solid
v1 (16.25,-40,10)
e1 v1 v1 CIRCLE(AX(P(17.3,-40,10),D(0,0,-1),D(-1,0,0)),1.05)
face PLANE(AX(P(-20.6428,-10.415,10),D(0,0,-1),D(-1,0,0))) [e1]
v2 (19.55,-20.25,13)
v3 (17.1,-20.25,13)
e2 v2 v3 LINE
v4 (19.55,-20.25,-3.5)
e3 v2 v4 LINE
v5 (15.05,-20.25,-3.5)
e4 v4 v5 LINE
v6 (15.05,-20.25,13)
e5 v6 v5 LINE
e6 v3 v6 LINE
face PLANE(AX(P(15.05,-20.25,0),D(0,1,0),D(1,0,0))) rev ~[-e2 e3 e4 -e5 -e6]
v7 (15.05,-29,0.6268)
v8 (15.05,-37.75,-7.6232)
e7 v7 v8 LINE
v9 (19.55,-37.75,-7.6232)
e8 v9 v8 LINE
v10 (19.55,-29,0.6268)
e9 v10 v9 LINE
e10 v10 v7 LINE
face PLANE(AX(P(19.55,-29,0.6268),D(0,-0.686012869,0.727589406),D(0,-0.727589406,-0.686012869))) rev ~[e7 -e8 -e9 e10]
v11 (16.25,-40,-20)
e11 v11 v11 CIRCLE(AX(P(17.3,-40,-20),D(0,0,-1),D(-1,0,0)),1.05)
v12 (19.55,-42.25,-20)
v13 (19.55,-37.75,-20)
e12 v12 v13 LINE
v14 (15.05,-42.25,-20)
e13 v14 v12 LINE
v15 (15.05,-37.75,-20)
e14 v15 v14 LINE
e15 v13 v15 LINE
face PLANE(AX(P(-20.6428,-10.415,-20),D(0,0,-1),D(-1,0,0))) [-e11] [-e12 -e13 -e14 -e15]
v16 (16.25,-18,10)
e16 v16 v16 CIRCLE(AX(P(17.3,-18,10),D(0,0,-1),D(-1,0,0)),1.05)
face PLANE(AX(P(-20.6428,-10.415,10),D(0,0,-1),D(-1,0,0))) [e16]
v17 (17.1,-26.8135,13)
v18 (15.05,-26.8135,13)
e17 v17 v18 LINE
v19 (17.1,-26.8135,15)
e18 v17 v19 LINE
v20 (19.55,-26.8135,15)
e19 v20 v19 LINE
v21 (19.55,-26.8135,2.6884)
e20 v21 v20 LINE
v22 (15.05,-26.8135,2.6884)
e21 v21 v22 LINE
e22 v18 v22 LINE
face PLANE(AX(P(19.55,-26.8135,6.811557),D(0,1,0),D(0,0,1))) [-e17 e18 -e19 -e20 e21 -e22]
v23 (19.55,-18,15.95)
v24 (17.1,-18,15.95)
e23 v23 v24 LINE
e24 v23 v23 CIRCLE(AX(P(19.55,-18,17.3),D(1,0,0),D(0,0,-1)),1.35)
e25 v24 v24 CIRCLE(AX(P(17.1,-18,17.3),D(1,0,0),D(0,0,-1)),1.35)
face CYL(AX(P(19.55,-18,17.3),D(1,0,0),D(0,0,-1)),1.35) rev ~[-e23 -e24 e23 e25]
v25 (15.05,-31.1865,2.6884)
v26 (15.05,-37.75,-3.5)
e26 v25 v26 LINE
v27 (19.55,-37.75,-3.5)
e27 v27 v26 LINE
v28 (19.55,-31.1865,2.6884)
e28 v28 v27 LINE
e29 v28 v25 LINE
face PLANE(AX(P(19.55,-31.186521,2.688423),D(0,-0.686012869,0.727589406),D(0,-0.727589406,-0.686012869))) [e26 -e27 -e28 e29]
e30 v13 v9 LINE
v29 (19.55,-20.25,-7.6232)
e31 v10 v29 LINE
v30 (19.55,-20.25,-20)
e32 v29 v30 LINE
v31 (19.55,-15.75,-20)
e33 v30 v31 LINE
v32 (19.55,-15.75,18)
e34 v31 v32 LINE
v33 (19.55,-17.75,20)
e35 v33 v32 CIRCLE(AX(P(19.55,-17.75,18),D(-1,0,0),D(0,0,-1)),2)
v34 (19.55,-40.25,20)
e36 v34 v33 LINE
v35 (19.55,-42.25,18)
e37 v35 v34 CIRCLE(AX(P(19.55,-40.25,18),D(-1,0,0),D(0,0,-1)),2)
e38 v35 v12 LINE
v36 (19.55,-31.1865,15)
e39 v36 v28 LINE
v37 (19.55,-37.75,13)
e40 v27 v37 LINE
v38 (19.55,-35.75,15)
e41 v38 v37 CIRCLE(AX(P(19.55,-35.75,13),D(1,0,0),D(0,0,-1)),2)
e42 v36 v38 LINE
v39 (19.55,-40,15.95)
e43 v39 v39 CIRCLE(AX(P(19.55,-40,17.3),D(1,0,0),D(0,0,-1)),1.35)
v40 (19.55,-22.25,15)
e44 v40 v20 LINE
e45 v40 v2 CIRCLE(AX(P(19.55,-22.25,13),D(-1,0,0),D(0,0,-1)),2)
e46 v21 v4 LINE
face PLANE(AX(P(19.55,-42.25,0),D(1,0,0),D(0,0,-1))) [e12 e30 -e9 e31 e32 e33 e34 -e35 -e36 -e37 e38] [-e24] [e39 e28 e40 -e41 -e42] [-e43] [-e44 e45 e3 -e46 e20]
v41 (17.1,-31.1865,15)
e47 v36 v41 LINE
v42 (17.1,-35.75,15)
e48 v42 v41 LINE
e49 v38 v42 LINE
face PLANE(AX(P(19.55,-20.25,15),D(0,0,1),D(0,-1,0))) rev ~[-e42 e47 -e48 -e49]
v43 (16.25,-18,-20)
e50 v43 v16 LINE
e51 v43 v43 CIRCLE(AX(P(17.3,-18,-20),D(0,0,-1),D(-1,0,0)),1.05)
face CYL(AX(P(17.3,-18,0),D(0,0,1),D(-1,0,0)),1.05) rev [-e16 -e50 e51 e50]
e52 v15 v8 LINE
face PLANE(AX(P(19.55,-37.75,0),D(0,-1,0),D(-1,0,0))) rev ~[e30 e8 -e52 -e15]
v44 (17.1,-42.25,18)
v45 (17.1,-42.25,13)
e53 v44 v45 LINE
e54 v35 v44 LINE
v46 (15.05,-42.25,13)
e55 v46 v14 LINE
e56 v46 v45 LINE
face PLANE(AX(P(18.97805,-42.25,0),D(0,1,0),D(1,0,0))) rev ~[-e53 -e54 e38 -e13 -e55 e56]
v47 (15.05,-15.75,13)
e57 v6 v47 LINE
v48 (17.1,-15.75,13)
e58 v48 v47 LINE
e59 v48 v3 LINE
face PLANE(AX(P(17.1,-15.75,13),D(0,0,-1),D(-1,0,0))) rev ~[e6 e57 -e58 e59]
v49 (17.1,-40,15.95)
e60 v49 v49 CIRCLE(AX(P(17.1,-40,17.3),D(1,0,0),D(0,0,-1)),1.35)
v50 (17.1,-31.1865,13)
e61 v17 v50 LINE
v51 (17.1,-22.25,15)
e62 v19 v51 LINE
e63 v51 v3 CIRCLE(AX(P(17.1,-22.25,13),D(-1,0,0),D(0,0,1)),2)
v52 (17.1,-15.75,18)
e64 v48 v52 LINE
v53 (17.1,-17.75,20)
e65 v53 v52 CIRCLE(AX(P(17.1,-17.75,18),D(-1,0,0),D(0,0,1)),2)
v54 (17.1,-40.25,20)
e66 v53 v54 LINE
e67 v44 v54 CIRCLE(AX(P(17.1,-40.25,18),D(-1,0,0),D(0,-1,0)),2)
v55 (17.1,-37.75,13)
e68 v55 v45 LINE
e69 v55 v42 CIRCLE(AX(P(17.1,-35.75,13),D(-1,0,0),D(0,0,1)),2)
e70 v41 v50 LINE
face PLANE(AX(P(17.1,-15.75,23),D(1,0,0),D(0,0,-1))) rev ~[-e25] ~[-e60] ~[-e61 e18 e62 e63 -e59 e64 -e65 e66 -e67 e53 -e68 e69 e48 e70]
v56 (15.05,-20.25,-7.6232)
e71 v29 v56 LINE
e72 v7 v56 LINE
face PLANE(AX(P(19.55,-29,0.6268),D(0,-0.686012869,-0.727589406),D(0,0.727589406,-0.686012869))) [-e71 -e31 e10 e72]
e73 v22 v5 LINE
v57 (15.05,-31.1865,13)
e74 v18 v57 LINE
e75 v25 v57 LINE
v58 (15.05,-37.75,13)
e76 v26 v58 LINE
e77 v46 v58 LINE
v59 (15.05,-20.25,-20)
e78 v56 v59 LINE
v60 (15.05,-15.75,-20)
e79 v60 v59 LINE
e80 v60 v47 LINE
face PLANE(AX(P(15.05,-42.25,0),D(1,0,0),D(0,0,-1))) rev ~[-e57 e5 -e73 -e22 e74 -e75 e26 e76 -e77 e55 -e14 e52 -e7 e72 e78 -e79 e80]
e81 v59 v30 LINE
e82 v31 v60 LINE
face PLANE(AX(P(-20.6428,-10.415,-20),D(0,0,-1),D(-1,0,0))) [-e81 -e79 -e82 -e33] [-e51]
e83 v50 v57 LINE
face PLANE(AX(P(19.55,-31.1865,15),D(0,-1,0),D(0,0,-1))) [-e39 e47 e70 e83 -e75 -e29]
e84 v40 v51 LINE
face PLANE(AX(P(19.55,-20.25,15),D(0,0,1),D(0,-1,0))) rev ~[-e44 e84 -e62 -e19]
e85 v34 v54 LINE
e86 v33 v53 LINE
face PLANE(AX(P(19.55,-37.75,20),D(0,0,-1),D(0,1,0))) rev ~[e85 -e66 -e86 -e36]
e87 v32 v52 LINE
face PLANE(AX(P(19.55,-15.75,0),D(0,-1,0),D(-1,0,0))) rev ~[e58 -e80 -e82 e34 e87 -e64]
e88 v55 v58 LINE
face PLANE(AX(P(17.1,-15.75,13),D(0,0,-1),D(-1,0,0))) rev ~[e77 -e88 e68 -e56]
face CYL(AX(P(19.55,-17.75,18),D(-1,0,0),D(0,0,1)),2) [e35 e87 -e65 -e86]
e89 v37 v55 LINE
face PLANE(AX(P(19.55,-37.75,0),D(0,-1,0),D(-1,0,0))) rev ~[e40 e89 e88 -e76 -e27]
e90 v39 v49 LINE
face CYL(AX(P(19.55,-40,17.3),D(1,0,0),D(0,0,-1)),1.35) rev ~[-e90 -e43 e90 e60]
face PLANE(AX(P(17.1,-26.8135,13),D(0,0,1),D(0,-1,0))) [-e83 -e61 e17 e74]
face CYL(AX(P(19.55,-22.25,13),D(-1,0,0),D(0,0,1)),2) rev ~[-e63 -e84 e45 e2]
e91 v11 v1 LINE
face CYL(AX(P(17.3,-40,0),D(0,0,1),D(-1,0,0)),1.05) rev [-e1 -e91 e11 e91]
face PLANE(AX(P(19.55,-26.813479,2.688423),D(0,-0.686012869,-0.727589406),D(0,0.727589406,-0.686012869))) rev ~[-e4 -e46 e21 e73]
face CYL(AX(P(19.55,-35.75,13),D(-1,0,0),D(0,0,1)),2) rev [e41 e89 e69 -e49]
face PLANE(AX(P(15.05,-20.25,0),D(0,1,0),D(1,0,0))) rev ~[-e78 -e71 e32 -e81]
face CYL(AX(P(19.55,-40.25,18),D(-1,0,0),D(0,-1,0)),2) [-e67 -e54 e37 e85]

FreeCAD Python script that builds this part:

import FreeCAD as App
import Part
import Sketcher
Q = App.Units.Quantity


def edges_at(feature, points):
    """Names of the edges that pass closest to the given points."""
    edges = feature.Shape.Edges
    near = lambda p: min(range(len(edges)), key=lambda i: edges[i].distToShape(Part.Vertex(*p))[0])
    return sorted({f"Edge{near(p) + 1}" for p in points})

doc = App.newDocument("Part")
body = doc.addObject("PartDesign::Body", "Body")
body.AllowCompound = True

# Sketch on XY plane
sketch1 = body.newObject("Sketcher::SketchObject", "Sketch")
sketch1.AttachmentSupport = (doc.getObject("XY_Plane"), [""])
sketch1.MapMode = "FlatFace"
sketch1.addGeometry([
    Part.LineSegment(App.Vector(19.55, -42.25, 0), App.Vector(19.55, -37.75, 0)),  # 0
    Part.LineSegment(App.Vector(19.55, -37.75, 0), App.Vector(15.05, -37.75, 0)),  # 1
    Part.LineSegment(App.Vector(15.05, -37.75, 0), App.Vector(15.05, -42.25, 0)),  # 2
    Part.LineSegment(App.Vector(15.05, -42.25, 0), App.Vector(19.55, -42.25, 0)),  # 3
    Part.LineSegment(App.Vector(15.05, -15.75, 0), App.Vector(15.05, -20.25, 0)),  # 4
    Part.LineSegment(App.Vector(15.05, -20.25, 0), App.Vector(19.55, -20.25, 0)),  # 5
    Part.LineSegment(App.Vector(19.55, -20.25, 0), App.Vector(19.55, -15.75, 0)),  # 6
    Part.LineSegment(App.Vector(19.55, -15.75, 0), App.Vector(15.05, -15.75, 0)),  # 7
], False)
sketch1.addConstraint([
    Sketcher.Constraint("Coincident", 0, 2, 1, 1),
    Sketcher.Constraint("Coincident", 1, 2, 2, 1),
    Sketcher.Constraint("Coincident", 2, 2, 3, 1),
    Sketcher.Constraint("Coincident", 3, 2, 0, 1),
    Sketcher.Constraint("Coincident", 4, 2, 5, 1),
    Sketcher.Constraint("Coincident", 5, 2, 6, 1),
    Sketcher.Constraint("Coincident", 6, 2, 7, 1),
    Sketcher.Constraint("Coincident", 7, 2, 4, 1),
    Sketcher.Constraint("Vertical", 0),
    Sketcher.Constraint("Horizontal", 1),
    Sketcher.Constraint("Vertical", 2),
    Sketcher.Constraint("Horizontal", 3),
    Sketcher.Constraint("Vertical", 4),
    Sketcher.Constraint("Horizontal", 5),
    Sketcher.Constraint("Vertical", 6),
    Sketcher.Constraint("Horizontal", 7),
    Sketcher.Constraint("Vertical", 2, 2, 4, 2),
    Sketcher.Constraint("Vertical", 3, 2, 5, 2),
    Sketcher.Constraint("Equal", 7, 0),
    Sketcher.Constraint("Equal", 2, 4),
    Sketcher.Constraint("DistanceX", 1, 2, 1, 1, Q("4.5 mm")),
    Sketcher.Constraint("DistanceY", 2, 2, 4, 2, Q("22 mm")),
    Sketcher.Constraint("DistanceX", -1, 1, 0, 2, Q("19.55 mm")),
    Sketcher.Constraint("DistanceY", 0, 2, -1, 1, Q("37.75 mm")),
])
pad1 = body.newObject("PartDesign::Pad", "Pad")
pad1.Profile = sketch1
pad1.Length = 20

# Sketch on YZ plane
sketch2 = body.newObject("Sketcher::SketchObject", "Sketch001")
sketch2.AttachmentSupport = (doc.getObject("YZ_Plane"), [""])
sketch2.MapMode = "FlatFace"
sketch2.AttachmentOffset = App.Placement(App.Vector(0, 0, 19.55), App.Rotation())
sketch2.addGeometry([
    Part.LineSegment(App.Vector(-37.75, 20, 0), App.Vector(-37.75, 15, 0)),
    Part.LineSegment(App.Vector(-37.75, 15, 0), App.Vector(-20.25, 15, 0)),
    Part.LineSegment(App.Vector(-20.25, 15, 0), App.Vector(-20.25, 20, 0)),
    Part.LineSegment(App.Vector(-20.25, 20, 0), App.Vector(-37.75, 20, 0)),
], False)
sketch2.addConstraint([
    Sketcher.Constraint("Coincident", 0, 2, 1, 1),
    Sketcher.Constraint("Coincident", 1, 2, 2, 1),
    Sketcher.Constraint("Coincident", 2, 2, 3, 1),
    Sketcher.Constraint("Coincident", 3, 2, 0, 1),
    Sketcher.Constraint("Vertical", 0),
    Sketcher.Constraint("Horizontal", 1),
    Sketcher.Constraint("Vertical", 2),
    Sketcher.Constraint("Horizontal", 3),
    Sketcher.Constraint("DistanceY", 0, 2, 0, 1, Q("5 mm")),
    Sketcher.Constraint("DistanceX", 1, 1, 1, 2, Q("17.5 mm")),
    Sketcher.Constraint("DistanceY", -1, 1, 0, 2, Q("15 mm")),
    Sketcher.Constraint("DistanceX", 0, 2, -1, 1, Q("37.75 mm")),
])
pad2 = body.newObject("PartDesign::Pad", "Pad001")
pad2.Profile = sketch2
pad2.Length = 4.5
pad2.Reversed = True
doc.recompute()

fillet = body.newObject("PartDesign::Fillet", "Fillet")
fillet.Base = (pad2, edges_at(pad2, [(17.3, -20.25, 15), (17.3, -37.75, 15)]))
fillet.Radius = 2
doc.recompute()

fillet2 = body.newObject("PartDesign::Fillet", "Fillet001")
fillet2.Base = (fillet, edges_at(fillet, [(17.3, -42.25, 20), (17.3, -15.75, 20)]))
fillet2.Radius = 2

# Sketch on XY plane
sketch3 = body.newObject("Sketcher::SketchObject", "Sketch002")
sketch3.AttachmentSupport = (doc.getObject("XY_Plane"), [""])
sketch3.MapMode = "FlatFace"
sketch3.addGeometry([
    Part.Circle(App.Vector(17.3, -40, 0), App.Vector(0, 0, 1), 1.05),
    Part.Circle(App.Vector(17.3, -18, 0), App.Vector(0, 0, 1), 1.05),
], False)
sketch3.addConstraint([
    Sketcher.Constraint("Equal", 0, 1),
    Sketcher.Constraint("Vertical", 0, 3, 1, 3),
    Sketcher.Constraint("Diameter", 0, Q("2.1 mm")),
    Sketcher.Constraint("DistanceY", 0, 3, -1, 1, Q("40 mm")),
    Sketcher.Constraint("DistanceY", 1, 3, -1, 1, Q("18 mm")),
    Sketcher.Constraint("DistanceX", -1, 1, 0, 3, Q("17.3 mm")),
])
pocket1 = body.newObject("PartDesign::Pocket", "Pocket")
pocket1.Profile = sketch3
pocket1.Length = 10
pocket1.Reversed = True

# Sketch on XZ plane
sketch4 = body.newObject("Sketcher::SketchObject", "Sketch003")
sketch4.AttachmentSupport = (doc.getObject("XZ_Plane"), [""])
sketch4.MapMode = "FlatFace"
sketch4.AttachmentOffset = App.Placement(App.Vector(0, 0, 15.75), App.Rotation())
sketch4.addGeometry([
    Part.LineSegment(App.Vector(17.1, 23, 0), App.Vector(17.1, 13, 0)),
    Part.LineSegment(App.Vector(17.1, 13, 0), App.Vector(-17.1, 13, 0)),
    Part.LineSegment(App.Vector(-17.1, 13, 0), App.Vector(-17.1, 23, 0)),
    Part.LineSegment(App.Vector(-17.1, 23, 0), App.Vector(17.1, 23, 0)),
], False)
sketch4.addConstraint([
    Sketcher.Constraint("Coincident", 0, 2, 1, 1),
    Sketcher.Constraint("Coincident", 1, 2, 2, 1),
    Sketcher.Constraint("Coincident", 2, 2, 3, 1),
    Sketcher.Constraint("Coincident", 3, 2, 0, 1),
    Sketcher.Constraint("Vertical", 0),
    Sketcher.Constraint("Horizontal", 1),
    Sketcher.Constraint("Vertical", 2),
    Sketcher.Constraint("Horizontal", 3),
    Sketcher.Constraint("DistanceY", 0, 2, 0, 1, Q("10 mm")),
    Sketcher.Constraint("DistanceX", 1, 2, 1, 1, Q("34.2 mm")),
    Sketcher.Constraint("DistanceY", -1, 1, 0, 2, Q("13 mm")),
    Sketcher.Constraint("DistanceX", -1, 1, 0, 2, Q("17.1 mm")),
])
pocket2 = body.newObject("PartDesign::Pocket", "Pocket001")
pocket2.Profile = sketch4
pocket2.Length = 26.5
pocket2.Reversed = True

# Sketch on YZ plane
sketch5 = body.newObject("Sketcher::SketchObject", "Sketch004")
sketch5.AttachmentSupport = (doc.getObject("YZ_Plane"), [""])
sketch5.MapMode = "FlatFace"
sketch5.AttachmentOffset = App.Placement(App.Vector(0, 0, 19.55), App.Rotation())
sketch5.addGeometry([
    Part.Circle(App.Vector(-40, 17.3, 0), App.Vector(0, 0, 1), 1.35),
    Part.Circle(App.Vector(-18, 17.3, 0), App.Vector(0, 0, 1), 1.35),
], False)
sketch5.addConstraint([
    Sketcher.Constraint("Equal", 0, 1),
    Sketcher.Constraint("Horizontal", 0, 3, 1, 3),
    Sketcher.Constraint("Diameter", 0, Q("2.7 mm")),
    Sketcher.Constraint("DistanceX", 0, 3, -1, 1, Q("40 mm")),
    Sketcher.Constraint("DistanceX", 1, 3, -1, 1, Q("18 mm")),
    Sketcher.Constraint("DistanceY", -1, 1, 0, 3, Q("17.3 mm")),
])
pocket3 = body.newObject("PartDesign::Pocket", "Pocket002")
pocket3.Profile = sketch5
pocket3.Type = "ThroughAll"

# Sketch on XY plane
sketch6 = body.newObject("Sketcher::SketchObject", "Sketch005")
sketch6.AttachmentSupport = (doc.getObject("XY_Plane"), [""])
sketch6.MapMode = "FlatFace"
sketch6.addGeometry([
    Part.LineSegment(App.Vector(19.55, -42.25, 0), App.Vector(15.05, -42.25, 0)),  # 0
    Part.LineSegment(App.Vector(15.05, -42.25, 0), App.Vector(15.05, -37.75, 0)),  # 1
    Part.LineSegment(App.Vector(15.05, -37.75, 0), App.Vector(19.55, -37.75, 0)),  # 2
    Part.LineSegment(App.Vector(19.55, -37.75, 0), App.Vector(19.55, -42.25, 0)),  # 3
    Part.Circle(App.Vector(17.3, -40, 0), App.Vector(0, 0, 1), 1.05),  # 4
    Part.LineSegment(App.Vector(19.55, -15.75, 0), App.Vector(19.55, -20.25, 0)),  # 5
    Part.LineSegment(App.Vector(19.55, -20.25, 0), App.Vector(15.05, -20.25, 0)),  # 6
    Part.LineSegment(App.Vector(15.05, -20.25, 0), App.Vector(15.05, -15.75, 0)),  # 7
    Part.LineSegment(App.Vector(15.05, -15.75, 0), App.Vector(19.55, -15.75, 0)),  # 8
    Part.Circle(App.Vector(17.3, -18, 0), App.Vector(0, 0, 1), 1.05),  # 9
], False)
sketch6.addConstraint([
    Sketcher.Constraint("Coincident", 0, 2, 1, 1),
    Sketcher.Constraint("Coincident", 1, 2, 2, 1),
    Sketcher.Constraint("Coincident", 2, 2, 3, 1),
    Sketcher.Constraint("Coincident", 3, 2, 0, 1),
    Sketcher.Constraint("Coincident", 5, 2, 6, 1),
    Sketcher.Constraint("Coincident", 6, 2, 7, 1),
    Sketcher.Constraint("Coincident", 7, 2, 8, 1),
    Sketcher.Constraint("Coincident", 8, 2, 5, 1),
    Sketcher.Constraint("Horizontal", 0),
    Sketcher.Constraint("Vertical", 1),
    Sketcher.Constraint("Horizontal", 2),
    Sketcher.Constraint("Vertical", 3),
    Sketcher.Constraint("Vertical", 5),
    Sketcher.Constraint("Horizontal", 6),
    Sketcher.Constraint("Vertical", 7),
    Sketcher.Constraint("Horizontal", 8),
    Sketcher.Constraint("Equal", 4, 9),
    Sketcher.Constraint("Vertical", 4, 3, 9, 3),
    Sketcher.Constraint("Vertical", 3, 2, 5, 2),
    Sketcher.Constraint("Vertical", 1, 2, 6, 2),
    Sketcher.Constraint("Equal", 8, 1),
    Sketcher.Constraint("Equal", 3, 5),
    Sketcher.Constraint("Diameter", 4, Q("2.1 mm")),
    Sketcher.Constraint("DistanceX", 0, 2, 0, 1, Q("4.5 mm")),
    Sketcher.Constraint("DistanceY", 4, 3, -1, 1, Q("40 mm")),
    Sketcher.Constraint("DistanceY", 9, 3, -1, 1, Q("18 mm")),
    Sketcher.Constraint("DistanceY", 3, 2, 5, 2, Q("22 mm")),
    Sketcher.Constraint("DistanceX", -1, 1, 4, 3, Q("17.3 mm")),
    Sketcher.Constraint("DistanceX", -1, 1, 0, 2, Q("15.05 mm")),
    Sketcher.Constraint("DistanceY", 0, 2, -1, 1, Q("42.25 mm")),
])
pad3 = body.newObject("PartDesign::Pad", "Pad002")
pad3.Profile = sketch6
pad3.Length = 20
pad3.Reversed = True

# Sketch on YZ plane
sketch7 = body.newObject("Sketcher::SketchObject", "Sketch006")
sketch7.AttachmentSupport = (doc.getObject("YZ_Plane"), [""])
sketch7.MapMode = "FlatFace"
sketch7.AttachmentOffset = App.Placement(App.Vector(0, 0, 19.55), App.Rotation())
sketch7.addGeometry([
    Part.LineSegment(App.Vector(-26.8135, 2.6884, 0), App.Vector(-26.8135, 15, 0)),  # 0
    Part.LineSegment(App.Vector(-26.8135, 15, 0), App.Vector(-31.1865, 15, 0)),  # 1
    Part.LineSegment(App.Vector(-31.1865, 15, 0), App.Vector(-31.1865, 2.6884, 0)),  # 2
    Part.LineSegment(App.Vector(-31.186521, 2.688423, 0), App.Vector(-37.75, -3.5, 0)),  # 3
    Part.LineSegment(App.Vector(-37.75, -3.5, 0), App.Vector(-37.75, -7.6232, 0)),  # 4
    Part.LineSegment(App.Vector(-37.75, -7.6232, 0), App.Vector(-29, 0.6268, 0)),  # 5
    Part.LineSegment(App.Vector(-29, 0.6268, 0), App.Vector(-20.25, -7.6232, 0)),  # 6
    Part.LineSegment(App.Vector(-20.25, -7.6232, 0), App.Vector(-20.25, -3.5, 0)),  # 7
    Part.LineSegment(App.Vector(-20.25, -3.5, 0), App.Vector(-26.813479, 2.688423, 0)),  # 8
], False)
sketch7.addConstraint([
    Sketcher.Constraint("Coincident", 0, 2, 1, 1),
    Sketcher.Constraint("Coincident", 1, 2, 2, 1),
    Sketcher.Constraint("Coincident", 2, 2, 3, 1),
    Sketcher.Constraint("Coincident", 3, 2, 4, 1),
    Sketcher.Constraint("Coincident", 4, 2, 5, 1),
    Sketcher.Constraint("Coincident", 5, 2, 6, 1),
    Sketcher.Constraint("Coincident", 6, 2, 7, 1),
    Sketcher.Constraint("Coincident", 7, 2, 8, 1),
    Sketcher.Constraint("Coincident", 8, 2, 0, 1),
    Sketcher.Constraint("Vertical", 0),
    Sketcher.Constraint("Horizontal", 1),
    Sketcher.Constraint("Vertical", 2),
    Sketcher.Constraint("Vertical", 4),
    Sketcher.Constraint("Vertical", 7),
    Sketcher.Constraint("Parallel", 3, 5),
    Sketcher.Constraint("Parallel", 6, 8),
    Sketcher.Constraint("Horizontal", 4, 2, 6, 2),
    Sketcher.Constraint("Horizontal", 3, 2, 7, 2),
    Sketcher.Constraint("Horizontal", 2, 2, 8, 2),
    Sketcher.Constraint("Equal", 5, 6),
    Sketcher.Constraint("DistanceY", -1, 1, 0, 2, Q("15 mm")),
    Sketcher.Constraint("DistanceX", 5, 2, -1, 1, Q("29 mm")),
    Sketcher.Constraint("DistanceY", 3, 2, -1, 1, Q("3.5 mm")),
    Sketcher.Constraint("DistanceX", 4, 2, 6, 2, Q("17.5 mm")),
    Sketcher.Constraint("DistanceX", 1, 2, 1, 1, Q("4.373 mm")),
    Sketcher.Constraint("DistanceY", 4, 2, 5, 2, Q("8.25 mm")),
    Sketcher.Constraint("DistanceY", 4, 2, 4, 1, Q("4.1232 mm")),
])
pad4 = body.newObject("PartDesign::Pad", "Pad003")
pad4.Profile = sketch7
pad4.Length = 4.5
pad4.Reversed = True

# Sketch on YZ plane
sketch8 = body.newObject("Sketcher::SketchObject", "Sketch007")
sketch8.AttachmentSupport = (doc.getObject("YZ_Plane"), [""])
sketch8.MapMode = "FlatFace"
sketch8.AttachmentOffset = App.Placement(App.Vector(0, 0, 17.1), App.Rotation())
sketch8.addGeometry([
    Part.LineSegment(App.Vector(-26.8135, 13, 0), App.Vector(-31.1865, 13, 0)),
    Part.LineSegment(App.Vector(-31.1865, 13, 0), App.Vector(-31.1865, 15, 0)),
    Part.LineSegment(App.Vector(-31.1865, 15, 0), App.Vector(-26.8135, 15, 0)),
    Part.LineSegment(App.Vector(-26.8135, 15, 0), App.Vector(-26.8135, 13, 0)),
], False)
sketch8.addConstraint([
    Sketcher.Constraint("Coincident", 0, 2, 1, 1),
    Sketcher.Constraint("Coincident", 1, 2, 2, 1),
    Sketcher.Constraint("Coincident", 2, 2, 3, 1),
    Sketcher.Constraint("Coincident", 3, 2, 0, 1),
    Sketcher.Constraint("Horizontal", 0),
    Sketcher.Constraint("Vertical", 1),
    Sketcher.Constraint("Horizontal", 2),
    Sketcher.Constraint("Vertical", 3),
    Sketcher.Constraint("DistanceY", 1, 1, 1, 2, Q("2 mm")),
    Sketcher.Constraint("DistanceY", -1, 1, 0, 2, Q("13 mm")),
    Sketcher.Constraint("DistanceX", 0, 2, 0, 1, Q("4.373 mm")),
    Sketcher.Constraint("DistanceX", 0, 2, -1, 1, Q("31.1865 mm")),
])
pocket4 = body.newObject("PartDesign::Pocket", "Pocket003")
pocket4.Profile = sketch8
pocket4.Length = 2.05

doc.recompute()
